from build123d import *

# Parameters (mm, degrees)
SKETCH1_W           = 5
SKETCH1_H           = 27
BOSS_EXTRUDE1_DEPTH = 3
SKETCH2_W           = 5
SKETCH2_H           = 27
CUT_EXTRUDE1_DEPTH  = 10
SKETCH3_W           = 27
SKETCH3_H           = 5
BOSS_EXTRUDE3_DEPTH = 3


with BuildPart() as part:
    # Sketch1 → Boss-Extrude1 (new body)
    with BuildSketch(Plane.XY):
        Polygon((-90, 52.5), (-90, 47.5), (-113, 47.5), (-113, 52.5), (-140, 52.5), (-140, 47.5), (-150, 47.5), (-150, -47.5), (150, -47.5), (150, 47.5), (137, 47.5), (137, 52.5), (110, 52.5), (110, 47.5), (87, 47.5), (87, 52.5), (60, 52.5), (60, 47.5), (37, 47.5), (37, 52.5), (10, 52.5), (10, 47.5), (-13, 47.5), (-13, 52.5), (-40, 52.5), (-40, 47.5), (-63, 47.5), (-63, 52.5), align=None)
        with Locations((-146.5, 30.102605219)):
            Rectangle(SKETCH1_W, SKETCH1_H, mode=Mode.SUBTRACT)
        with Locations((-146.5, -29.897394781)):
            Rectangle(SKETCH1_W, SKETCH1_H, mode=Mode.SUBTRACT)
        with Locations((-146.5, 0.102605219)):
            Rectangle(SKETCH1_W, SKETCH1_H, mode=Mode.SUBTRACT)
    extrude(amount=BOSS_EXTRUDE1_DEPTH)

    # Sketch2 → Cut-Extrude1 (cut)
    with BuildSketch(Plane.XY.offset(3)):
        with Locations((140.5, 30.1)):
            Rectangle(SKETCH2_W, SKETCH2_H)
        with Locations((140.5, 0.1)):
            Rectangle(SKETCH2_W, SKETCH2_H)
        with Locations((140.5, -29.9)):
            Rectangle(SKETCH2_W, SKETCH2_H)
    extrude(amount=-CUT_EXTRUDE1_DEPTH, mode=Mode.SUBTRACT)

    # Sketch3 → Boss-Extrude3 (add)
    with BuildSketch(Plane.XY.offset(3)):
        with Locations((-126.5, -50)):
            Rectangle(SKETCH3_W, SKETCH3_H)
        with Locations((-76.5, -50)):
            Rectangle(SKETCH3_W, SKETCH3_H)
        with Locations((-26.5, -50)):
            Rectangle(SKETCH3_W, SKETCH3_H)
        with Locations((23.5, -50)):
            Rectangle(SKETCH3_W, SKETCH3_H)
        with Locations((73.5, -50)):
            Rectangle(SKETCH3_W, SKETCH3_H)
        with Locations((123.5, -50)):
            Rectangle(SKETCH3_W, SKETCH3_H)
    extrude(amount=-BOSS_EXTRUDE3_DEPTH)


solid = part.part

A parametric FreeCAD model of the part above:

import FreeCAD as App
import Part
import Sketcher

V = App.Vector
Q = App.Units.Quantity

doc = App.newDocument("Part")
body = doc.addObject("PartDesign::Body", "Body")

# Sketch on XY plane
sketch1 = body.newObject("Sketcher::SketchObject", "Sketch")
sketch1.AttachmentSupport = (doc.getObject("XY_Plane"), [""])
sketch1.MapMode = "FlatFace"
sketch1.addGeometry(Part.LineSegment(V(-90, 52.5, 0), V(-90, 47.5, 0)), False)
sketch1.addGeometry(Part.LineSegment(V(-90, 47.5, 0), V(-113, 47.5, 0)), False)
sketch1.addGeometry(Part.LineSegment(V(-113, 47.5, 0), V(-113, 52.5, 0)), False)
sketch1.addGeometry(Part.LineSegment(V(-113, 52.5, 0), V(-140, 52.5, 0)), False)
sketch1.addGeometry(Part.LineSegment(V(-140, 52.5, 0), V(-140, 47.5, 0)), False)
sketch1.addGeometry(Part.LineSegment(V(-140, 47.5, 0), V(-150, 47.5, 0)), False)
sketch1.addGeometry(Part.LineSegment(V(-150, 47.5, 0), V(-150, -47.5, 0)), False)
sketch1.addGeometry(Part.LineSegment(V(-150, -47.5, 0), V(150, -47.5, 0)), False)
sketch1.addGeometry(Part.LineSegment(V(150, -47.5, 0), V(150, 47.5, 0)), False)
sketch1.addGeometry(Part.LineSegment(V(150, 47.5, 0), V(137, 47.5, 0)), False)
sketch1.addGeometry(Part.LineSegment(V(137, 47.5, 0), V(137, 52.5, 0)), False)
sketch1.addGeometry(Part.LineSegment(V(137, 52.5, 0), V(110, 52.5, 0)), False)
sketch1.addGeometry(Part.LineSegment(V(110, 52.5, 0), V(110, 47.5, 0)), False)
sketch1.addGeometry(Part.LineSegment(V(110, 47.5, 0), V(87, 47.5, 0)), False)
sketch1.addGeometry(Part.LineSegment(V(87, 47.5, 0), V(87, 52.5, 0)), False)
sketch1.addGeometry(Part.LineSegment(V(87, 52.5, 0), V(60, 52.5, 0)), False)
sketch1.addGeometry(Part.LineSegment(V(60, 52.5, 0), V(60, 47.5, 0)), False)
sketch1.addGeometry(Part.LineSegment(V(60, 47.5, 0), V(37, 47.5, 0)), False)
sketch1.addGeometry(Part.LineSegment(V(37, 47.5, 0), V(37, 52.5, 0)), False)
sketch1.addGeometry(Part.LineSegment(V(37, 52.5, 0), V(10, 52.5, 0)), False)
sketch1.addGeometry(Part.LineSegment(V(10, 52.5, 0), V(10, 47.5, 0)), False)
sketch1.addGeometry(Part.LineSegment(V(10, 47.5, 0), V(-13, 47.5, 0)), False)
sketch1.addGeometry(Part.LineSegment(V(-13, 47.5, 0), V(-13, 52.5, 0)), False)
sketch1.addGeometry(Part.LineSegment(V(-13, 52.5, 0), V(-40, 52.5, 0)), False)
sketch1.addGeometry(Part.LineSegment(V(-40, 52.5, 0), V(-40, 47.5, 0)), False)
sketch1.addGeometry(Part.LineSegment(V(-40, 47.5, 0), V(-63, 47.5, 0)), False)
sketch1.addGeometry(Part.LineSegment(V(-63, 47.5, 0), V(-63, 52.5, 0)), False)
sketch1.addGeometry(Part.LineSegment(V(-63, 52.5, 0), V(-90, 52.5, 0)), False)
sketch1.addGeometry(Part.LineSegment(V(-144, -43.397395, 0), V(-149, -43.397395, 0)), False)
sketch1.addGeometry(Part.LineSegment(V(-149, -43.397395, 0), V(-149, -16.397395, 0)), False)
sketch1.addGeometry(Part.LineSegment(V(-149, -16.397395, 0), V(-144, -16.397395, 0)), False)
sketch1.addGeometry(Part.LineSegment(V(-144, -16.397395, 0), V(-144, -43.397395, 0)), False)
sketch1.addGeometry(Part.LineSegment(V(-144, -13.397395, 0), V(-149, -13.397395, 0)), False)
sketch1.addGeometry(Part.LineSegment(V(-149, -13.397395, 0), V(-149, 13.602605, 0)), False)
sketch1.addGeometry(Part.LineSegment(V(-149, 13.602605, 0), V(-144, 13.602605, 0)), False)
sketch1.addGeometry(Part.LineSegment(V(-144, 13.602605, 0), V(-144, -13.397395, 0)), False)
sketch1.addGeometry(Part.LineSegment(V(-144, 16.602605, 0), V(-149, 16.602605, 0)), False)
sketch1.addGeometry(Part.LineSegment(V(-149, 16.602605, 0), V(-149, 43.602605, 0)), False)
sketch1.addGeometry(Part.LineSegment(V(-149, 43.602605, 0), V(-144, 43.602605, 0)), False)
sketch1.addGeometry(Part.LineSegment(V(-144, 43.602605, 0), V(-144, 16.602605, 0)), False)
sketch1.addConstraint(Sketcher.Constraint("Coincident", 0, 2, 1, 1))
sketch1.addConstraint(Sketcher.Constraint("Coincident", 1, 2, 2, 1))
sketch1.addConstraint(Sketcher.Constraint("Coincident", 2, 2, 3, 1))
sketch1.addConstraint(Sketcher.Constraint("Coincident", 3, 2, 4, 1))
sketch1.addConstraint(Sketcher.Constraint("Coincident", 4, 2, 5, 1))
sketch1.addConstraint(Sketcher.Constraint("Coincident", 5, 2, 6, 1))
sketch1.addConstraint(Sketcher.Constraint("Coincident", 6, 2, 7, 1))
sketch1.addConstraint(Sketcher.Constraint("Coincident", 7, 2, 8, 1))
sketch1.addConstraint(Sketcher.Constraint("Coincident", 8, 2, 9, 1))
sketch1.addConstraint(Sketcher.Constraint("Coincident", 9, 2, 10, 1))
sketch1.addConstraint(Sketcher.Constraint("Coincident", 10, 2, 11, 1))
sketch1.addConstraint(Sketcher.Constraint("Coincident", 11, 2, 12, 1))
sketch1.addConstraint(Sketcher.Constraint("Coincident", 12, 2, 13, 1))
sketch1.addConstraint(Sketcher.Constraint("Coincident", 13, 2, 14, 1))
sketch1.addConstraint(Sketcher.Constraint("Coincident", 14, 2, 15, 1))
sketch1.addConstraint(Sketcher.Constraint("Coincident", 15, 2, 16, 1))
sketch1.addConstraint(Sketcher.Constraint("Coincident", 16, 2, 17, 1))
sketch1.addConstraint(Sketcher.Constraint("Coincident", 17, 2, 18, 1))
sketch1.addConstraint(Sketcher.Constraint("Coincident", 18, 2, 19, 1))
sketch1.addConstraint(Sketcher.Constraint("Coincident", 19, 2, 20, 1))
sketch1.addConstraint(Sketcher.Constraint("Coincident", 20, 2, 21, 1))
sketch1.addConstraint(Sketcher.Constraint("Coincident", 21, 2, 22, 1))
sketch1.addConstraint(Sketcher.Constraint("Coincident", 22, 2, 23, 1))
sketch1.addConstraint(Sketcher.Constraint("Coincident", 23, 2, 24, 1))
sketch1.addConstraint(Sketcher.Constraint("Coincident", 24, 2, 25, 1))
sketch1.addConstraint(Sketcher.Constraint("Coincident", 25, 2, 26, 1))
sketch1.addConstraint(Sketcher.Constraint("Coincident", 26, 2, 27, 1))
sketch1.addConstraint(Sketcher.Constraint("Coincident", 27, 2, 0, 1))
sketch1.addConstraint(Sketcher.Constraint("Coincident", 28, 2, 29, 1))
sketch1.addConstraint(Sketcher.Constraint("Coincident", 29, 2, 30, 1))
sketch1.addConstraint(Sketcher.Constraint("Coincident", 30, 2, 31, 1))
sketch1.addConstraint(Sketcher.Constraint("Coincident", 31, 2, 28, 1))
sketch1.addConstraint(Sketcher.Constraint("Coincident", 32, 2, 33, 1))
sketch1.addConstraint(Sketcher.Constraint("Coincident", 33, 2, 34, 1))
sketch1.addConstraint(Sketcher.Constraint("Coincident", 34, 2, 35, 1))
sketch1.addConstraint(Sketcher.Constraint("Coincident", 35, 2, 32, 1))
sketch1.addConstraint(Sketcher.Constraint("Coincident", 36, 2, 37, 1))
sketch1.addConstraint(Sketcher.Constraint("Coincident", 37, 2, 38, 1))
sketch1.addConstraint(Sketcher.Constraint("Coincident", 38, 2, 39, 1))
sketch1.addConstraint(Sketcher.Constraint("Coincident", 39, 2, 36, 1))
sketch1.addConstraint(Sketcher.Constraint("Vertical", 0))
sketch1.addConstraint(Sketcher.Constraint("Horizontal", 1))
sketch1.addConstraint(Sketcher.Constraint("Vertical", 2))
sketch1.addConstraint(Sketcher.Constraint("Horizontal", 3))
sketch1.addConstraint(Sketcher.Constraint("Vertical", 4))
sketch1.addConstraint(Sketcher.Constraint("Horizontal", 5))
sketch1.addConstraint(Sketcher.Constraint("Vertical", 6))
sketch1.addConstraint(Sketcher.Constraint("Horizontal", 7))
sketch1.addConstraint(Sketcher.Constraint("Vertical", 8))
sketch1.addConstraint(Sketcher.Constraint("Horizontal", 9))
sketch1.addConstraint(Sketcher.Constraint("Vertical", 10))
sketch1.addConstraint(Sketcher.Constraint("Horizontal", 11))
sketch1.addConstraint(Sketcher.Constraint("Vertical", 12))
sketch1.addConstraint(Sketcher.Constraint("Horizontal", 13))
sketch1.addConstraint(Sketcher.Constraint("Vertical", 14))
sketch1.addConstraint(Sketcher.Constraint("Horizontal", 15))
sketch1.addConstraint(Sketcher.Constraint("Vertical", 16))
sketch1.addConstraint(Sketcher.Constraint("Horizontal", 17))
sketch1.addConstraint(Sketcher.Constraint("Vertical", 18))
sketch1.addConstraint(Sketcher.Constraint("Horizontal", 19))
sketch1.addConstraint(Sketcher.Constraint("Vertical", 20))
sketch1.addConstraint(Sketcher.Constraint("Horizontal", 21))
sketch1.addConstraint(Sketcher.Constraint("Vertical", 22))
sketch1.addConstraint(Sketcher.Constraint("Horizontal", 23))
sketch1.addConstraint(Sketcher.Constraint("Vertical", 24))
sketch1.addConstraint(Sketcher.Constraint("Horizontal", 25))
sketch1.addConstraint(Sketcher.Constraint("Vertical", 26))
sketch1.addConstraint(Sketcher.Constraint("Horizontal", 27))
sketch1.addConstraint(Sketcher.Constraint("Horizontal", 28))
sketch1.addConstraint(Sketcher.Constraint("Vertical", 29))
sketch1.addConstraint(Sketcher.Constraint("Horizontal", 30))
sketch1.addConstraint(Sketcher.Constraint("Vertical", 31))
sketch1.addConstraint(Sketcher.Constraint("Horizontal", 32))
sketch1.addConstraint(Sketcher.Constraint("Vertical", 33))
sketch1.addConstraint(Sketcher.Constraint("Horizontal", 34))
sketch1.addConstraint(Sketcher.Constraint("Vertical", 35))
sketch1.addConstraint(Sketcher.Constraint("Horizontal", 36))
sketch1.addConstraint(Sketcher.Constraint("Vertical", 37))
sketch1.addConstraint(Sketcher.Constraint("Horizontal", 38))
sketch1.addConstraint(Sketcher.Constraint("Vertical", 39))
sketch1.addConstraint(Sketcher.Constraint("Symmetric", 5, 2, 7, 2, -1, 1))
sketch1.addConstraint(Sketcher.Constraint("Horizontal", 1, 2, 4, 2))
sketch1.addConstraint(Sketcher.Constraint("Horizontal", 5, 2, 8, 2))
sketch1.addConstraint(Sketcher.Constraint("Horizontal", 3, 2, 10, 2))
sketch1.addConstraint(Sketcher.Constraint("Horizontal", 9, 2, 12, 2))
sketch1.addConstraint(Sketcher.Constraint("Horizontal", 11, 2, 14, 2))
sketch1.addConstraint(Sketcher.Constraint("Horizontal", 13, 2, 16, 2))
sketch1.addConstraint(Sketcher.Constraint("Horizontal", 15, 2, 18, 2))
sketch1.addConstraint(Sketcher.Constraint("Horizontal", 17, 2, 20, 2))
sketch1.addConstraint(Sketcher.Constraint("Horizontal", 19, 2, 22, 2))
sketch1.addConstraint(Sketcher.Constraint("Horizontal", 21, 2, 24, 2))
sketch1.addConstraint(Sketcher.Constraint("Horizontal", 23, 2, 26, 2))
sketch1.addConstraint(Sketcher.Constraint("Vertical", 29, 2, 32, 2))
sketch1.addConstraint(Sketcher.Constraint("Vertical", 31, 2, 34, 2))
sketch1.addConstraint(Sketcher.Constraint("Vertical", 33, 2, 36, 2))
sketch1.addConstraint(Sketcher.Constraint("Vertical", 35, 2, 38, 2))
sketch1.addConstraint(Sketcher.Constraint("Equal", 3, 11))
sketch1.addConstraint(Sketcher.Constraint("Equal", 1, 13))
sketch1.addConstraint(Sketcher.Constraint("Equal", 11, 15))
sketch1.addConstraint(Sketcher.Constraint("Equal", 13, 17))
sketch1.addConstraint(Sketcher.Constraint("Equal", 15, 19))
sketch1.addConstraint(Sketcher.Constraint("Equal", 17, 21))
sketch1.addConstraint(Sketcher.Constraint("Equal", 19, 23))
sketch1.addConstraint(Sketcher.Constraint("Equal", 21, 25))
sketch1.addConstraint(Sketcher.Constraint("Equal", 23, 27))
sketch1.addConstraint(Sketcher.Constraint("Equal", 38, 0))
sketch1.addConstraint(Sketcher.Constraint("Equal", 27, 29))
sketch1.addConstraint(Sketcher.Constraint("Equal", 31, 33))
sketch1.addConstraint(Sketcher.Constraint("Equal", 35, 37))
sketch1.addConstraint(Sketcher.Constraint("DistanceX", 1, 2, 1, 1, Q("23 mm")))
sketch1.addConstraint(Sketcher.Constraint("DistanceX", 3, 2, 3, 1, Q("27 mm")))
sketch1.addConstraint(Sketcher.Constraint("DistanceX", 5, 2, 5, 1, Q("10 mm")))
sketch1.addConstraint(Sketcher.Constraint("DistanceX", 7, 1, 7, 2, Q("300 mm")))
sketch1.addConstraint(Sketcher.Constraint("DistanceX", 28, 2, 28, 1, Q("5 mm")))
sketch1.addConstraint(Sketcher.Constraint("DistanceY", 6, 2, 6, 1, Q("95 mm")))
sketch1.addConstraint(Sketcher.Constraint("DistanceX", 28, 2, -1, 1, Q("149 mm")))
sketch1.addConstraint(Sketcher.Constraint("DistanceY", 29, 2, 32, 2, Q("3 mm")))
sketch1.addConstraint(Sketcher.Constraint("DistanceY", 33, 2, 36, 2, Q("3 mm")))
sketch1.addConstraint(Sketcher.Constraint("DistanceY", 28, 2, -1, 1, Q("43.397395 mm")))
pad1 = body.newObject("PartDesign::Pad", "Pad")
pad1.Profile = sketch1
pad1.Length = 3

# Sketch on XY plane
sketch2 = body.newObject("Sketcher::SketchObject", "Sketch001")
sketch2.AttachmentSupport = (doc.getObject("XY_Plane"), [""])
sketch2.MapMode = "FlatFace"
sketch2.AttachmentOffset = App.Placement(V(0, 0, 3), App.Rotation())
sketch2.addGeometry(Part.LineSegment(V(138, 43.6, 0), V(138, 16.6, 0)), False)
sketch2.addGeometry(Part.LineSegment(V(138, 16.6, 0), V(143, 16.6, 0)), False)
sketch2.addGeometry(Part.LineSegment(V(143, 16.6, 0), V(143, 43.6, 0)), False)
sketch2.addGeometry(Part.LineSegment(V(143, 43.6, 0), V(138, 43.6, 0)), False)
sketch2.addGeometry(Part.LineSegment(V(138, 13.6, 0), V(138, -13.4, 0)), False)
sketch2.addGeometry(Part.LineSegment(V(138, -13.4, 0), V(143, -13.4, 0)), False)
sketch2.addGeometry(Part.LineSegment(V(143, -13.4, 0), V(143, 13.6, 0)), False)
sketch2.addGeometry(Part.LineSegment(V(143, 13.6, 0), V(138, 13.6, 0)), False)
sketch2.addGeometry(Part.LineSegment(V(138, -16.4, 0), V(138, -43.4, 0)), False)
sketch2.addGeometry(Part.LineSegment(V(138, -43.4, 0), V(143, -43.4, 0)), False)
sketch2.addGeometry(Part.LineSegment(V(143, -43.4, 0), V(143, -16.4, 0)), False)
sketch2.addGeometry(Part.LineSegment(V(143, -16.4, 0), V(138, -16.4, 0)), False)
sketch2.addConstraint(Sketcher.Constraint("Coincident", 0, 2, 1, 1))
sketch2.addConstraint(Sketcher.Constraint("Coincident", 1, 2, 2, 1))
sketch2.addConstraint(Sketcher.Constraint("Coincident", 2, 2, 3, 1))
sketch2.addConstraint(Sketcher.Constraint("Coincident", 3, 2, 0, 1))
sketch2.addConstraint(Sketcher.Constraint("Coincident", 4, 2, 5, 1))
sketch2.addConstraint(Sketcher.Constraint("Coincident", 5, 2, 6, 1))
sketch2.addConstraint(Sketcher.Constraint("Coincident", 6, 2, 7, 1))
sketch2.addConstraint(Sketcher.Constraint("Coincident", 7, 2, 4, 1))
sketch2.addConstraint(Sketcher.Constraint("Coincident", 8, 2, 9, 1))
sketch2.addConstraint(Sketcher.Constraint("Coincident", 9, 2, 10, 1))
sketch2.addConstraint(Sketcher.Constraint("Coincident", 10, 2, 11, 1))
sketch2.addConstraint(Sketcher.Constraint("Coincident", 11, 2, 8, 1))
sketch2.addConstraint(Sketcher.Constraint("Vertical", 0))
sketch2.addConstraint(Sketcher.Constraint("Horizontal", 1))
sketch2.addConstraint(Sketcher.Constraint("Vertical", 2))
sketch2.addConstraint(Sketcher.Constraint("Horizontal", 3))
sketch2.addConstraint(Sketcher.Constraint("Vertical", 4))
sketch2.addConstraint(Sketcher.Constraint("Horizontal", 5))
sketch2.addConstraint(Sketcher.Constraint("Vertical", 6))
sketch2.addConstraint(Sketcher.Constraint("Horizontal", 7))
sketch2.addConstraint(Sketcher.Constraint("Vertical", 8))
sketch2.addConstraint(Sketcher.Constraint("Horizontal", 9))
sketch2.addConstraint(Sketcher.Constraint("Vertical", 10))
sketch2.addConstraint(Sketcher.Constraint("Horizontal", 11))
sketch2.addConstraint(Sketcher.Constraint("Vertical", 3, 2, 4, 2))
sketch2.addConstraint(Sketcher.Constraint("Vertical", 2, 2, 5, 2))
sketch2.addConstraint(Sketcher.Constraint("Vertical", 7, 2, 8, 2))
sketch2.addConstraint(Sketcher.Constraint("Vertical", 6, 2, 9, 2))
sketch2.addConstraint(Sketcher.Constraint("Equal", 2, 4))
sketch2.addConstraint(Sketcher.Constraint("Equal", 6, 8))
sketch2.addConstraint(Sketcher.Constraint("DistanceX", 1, 1, 1, 2, Q("5 mm")))
sketch2.addConstraint(Sketcher.Constraint("DistanceY", 0, 2, 0, 1, Q("27 mm")))
sketch2.addConstraint(Sketcher.Constraint("DistanceX", -1, 1, 0, 2, Q("138 mm")))
sketch2.addConstraint(Sketcher.Constraint("DistanceY", 4, 2, 0, 2, Q("30 mm")))
sketch2.addConstraint(Sketcher.Constraint("DistanceY", 8, 2, 4, 2, Q("30 mm")))
sketch2.addConstraint(Sketcher.Constraint("DistanceY", -1, 1, 0, 2, Q("16.6 mm")))
pocket1 = body.newObject("PartDesign::Pocket", "Pocket")
pocket1.Profile = sketch2
pocket1.Length = 10

# Sketch on XY plane
sketch3 = body.newObject("Sketcher::SketchObject", "Sketch002")
sketch3.AttachmentSupport = (doc.getObject("XY_Plane"), [""])
sketch3.MapMode = "FlatFace"
sketch3.AttachmentOffset = App.Placement(V(0, 0, 3), App.Rotation())
sketch3.addGeometry(Part.LineSegment(V(-140, -47.5, 0), V(-140, -52.5, 0)), False)
sketch3.addGeometry(Part.LineSegment(V(-140, -52.5, 0), V(-113, -52.5, 0)), False)
sketch3.addGeometry(Part.LineSegment(V(-113, -52.5, 0), V(-113, -47.5, 0)), False)
sketch3.addGeometry(Part.LineSegment(V(-113, -47.5, 0), V(-140, -47.5, 0)), False)
sketch3.addGeometry(Part.LineSegment(V(-90, -47.5, 0), V(-90, -52.5, 0)), False)
sketch3.addGeometry(Part.LineSegment(V(-90, -52.5, 0), V(-63, -52.5, 0)), False)
sketch3.addGeometry(Part.LineSegment(V(-63, -52.5, 0), V(-63, -47.5, 0)), False)
sketch3.addGeometry(Part.LineSegment(V(-63, -47.5, 0), V(-90, -47.5, 0)), False)
sketch3.addGeometry(Part.LineSegment(V(-40, -47.5, 0), V(-40, -52.5, 0)), False)
sketch3.addGeometry(Part.LineSegment(V(-40, -52.5, 0), V(-13, -52.5, 0)), False)
sketch3.addGeometry(Part.LineSegment(V(-13, -52.5, 0), V(-13, -47.5, 0)), False)
sketch3.addGeometry(Part.LineSegment(V(-13, -47.5, 0), V(-40, -47.5, 0)), False)
sketch3.addGeometry(Part.LineSegment(V(10, -47.5, 0), V(10, -52.5, 0)), False)
sketch3.addGeometry(Part.LineSegment(V(10, -52.5, 0), V(37, -52.5, 0)), False)
sketch3.addGeometry(Part.LineSegment(V(37, -52.5, 0), V(37, -47.5, 0)), False)
sketch3.addGeometry(Part.LineSegment(V(37, -47.5, 0), V(10, -47.5, 0)), False)
sketch3.addGeometry(Part.LineSegment(V(60, -47.5, 0), V(60, -52.5, 0)), False)
sketch3.addGeometry(Part.LineSegment(V(60, -52.5, 0), V(87, -52.5, 0)), False)
sketch3.addGeometry(Part.LineSegment(V(87, -52.5, 0), V(87, -47.5, 0)), False)
sketch3.addGeometry(Part.LineSegment(V(87, -47.5, 0), V(60, -47.5, 0)), False)
sketch3.addGeometry(Part.LineSegment(V(110, -47.5, 0), V(110, -52.5, 0)), False)
sketch3.addGeometry(Part.LineSegment(V(110, -52.5, 0), V(137, -52.5, 0)), False)
sketch3.addGeometry(Part.LineSegment(V(137, -52.5, 0), V(137, -47.5, 0)), False)
sketch3.addGeometry(Part.LineSegment(V(137, -47.5, 0), V(110, -47.5, 0)), False)
sketch3.addConstraint(Sketcher.Constraint("Coincident", 0, 2, 1, 1))
sketch3.addConstraint(Sketcher.Constraint("Coincident", 1, 2, 2, 1))
sketch3.addConstraint(Sketcher.Constraint("Coincident", 2, 2, 3, 1))
sketch3.addConstraint(Sketcher.Constraint("Coincident", 3, 2, 0, 1))
sketch3.addConstraint(Sketcher.Constraint("Coincident", 4, 2, 5, 1))
sketch3.addConstraint(Sketcher.Constraint("Coincident", 5, 2, 6, 1))
sketch3.addConstraint(Sketcher.Constraint("Coincident", 6, 2, 7, 1))
sketch3.addConstraint(Sketcher.Constraint("Coincident", 7, 2, 4, 1))
sketch3.addConstraint(Sketcher.Constraint("Coincident", 8, 2, 9, 1))
sketch3.addConstraint(Sketcher.Constraint("Coincident", 9, 2, 10, 1))
sketch3.addConstraint(Sketcher.Constraint("Coincident", 10, 2, 11, 1))
sketch3.addConstraint(Sketcher.Constraint("Coincident", 11, 2, 8, 1))
sketch3.addConstraint(Sketcher.Constraint("Coincident", 12, 2, 13, 1))
sketch3.addConstraint(Sketcher.Constraint("Coincident", 13, 2, 14, 1))
sketch3.addConstraint(Sketcher.Constraint("Coincident", 14, 2, 15, 1))
sketch3.addConstraint(Sketcher.Constraint("Coincident", 15, 2, 12, 1))
sketch3.addConstraint(Sketcher.Constraint("Coincident", 16, 2, 17, 1))
sketch3.addConstraint(Sketcher.Constraint("Coincident", 17, 2, 18, 1))
sketch3.addConstraint(Sketcher.Constraint("Coincident", 18, 2, 19, 1))
sketch3.addConstraint(Sketcher.Constraint("Coincident", 19, 2, 16, 1))
sketch3.addConstraint(Sketcher.Constraint("Coincident", 20, 2, 21, 1))
sketch3.addConstraint(Sketcher.Constraint("Coincident", 21, 2, 22, 1))
sketch3.addConstraint(Sketcher.Constraint("Coincident", 22, 2, 23, 1))
sketch3.addConstraint(Sketcher.Constraint("Coincident", 23, 2, 20, 1))
sketch3.addConstraint(Sketcher.Constraint("Vertical", 0))
sketch3.addConstraint(Sketcher.Constraint("Horizontal", 1))
sketch3.addConstraint(Sketcher.Constraint("Vertical", 2))
sketch3.addConstraint(Sketcher.Constraint("Horizontal", 3))
sketch3.addConstraint(Sketcher.Constraint("Vertical", 4))
sketch3.addConstraint(Sketcher.Constraint("Horizontal", 5))
sketch3.addConstraint(Sketcher.Constraint("Vertical", 6))
sketch3.addConstraint(Sketcher.Constraint("Horizontal", 7))
sketch3.addConstraint(Sketcher.Constraint("Vertical", 8))
sketch3.addConstraint(Sketcher.Constraint("Horizontal", 9))
sketch3.addConstraint(Sketcher.Constraint("Vertical", 10))
sketch3.addConstraint(Sketcher.Constraint("Horizontal", 11))
sketch3.addConstraint(Sketcher.Constraint("Vertical", 12))
sketch3.addConstraint(Sketcher.Constraint("Horizontal", 13))
sketch3.addConstraint(Sketcher.Constraint("Vertical", 14))
sketch3.addConstraint(Sketcher.Constraint("Horizontal", 15))
sketch3.addConstraint(Sketcher.Constraint("Vertical", 16))
sketch3.addConstraint(Sketcher.Constraint("Horizontal", 17))
sketch3.addConstraint(Sketcher.Constraint("Vertical", 18))
sketch3.addConstraint(Sketcher.Constraint("Horizontal", 19))
sketch3.addConstraint(Sketcher.Constraint("Vertical", 20))
sketch3.addConstraint(Sketcher.Constraint("Horizontal", 21))
sketch3.addConstraint(Sketcher.Constraint("Vertical", 22))
sketch3.addConstraint(Sketcher.Constraint("Horizontal", 23))
sketch3.addConstraint(Sketcher.Constraint("Horizontal", 1, 2, 4, 2))
sketch3.addConstraint(Sketcher.Constraint("Horizontal", 3, 2, 6, 2))
sketch3.addConstraint(Sketcher.Constraint("Horizontal", 5, 2, 8, 2))
sketch3.addConstraint(Sketcher.Constraint("Horizontal", 7, 2, 10, 2))
sketch3.addConstraint(Sketcher.Constraint("Horizontal", 9, 2, 12, 2))
sketch3.addConstraint(Sketcher.Constraint("Horizontal", 11, 2, 14, 2))
sketch3.addConstraint(Sketcher.Constraint("Horizontal", 13, 2, 16, 2))
sketch3.addConstraint(Sketcher.Constraint("Horizontal", 15, 2, 18, 2))
sketch3.addConstraint(Sketcher.Constraint("Horizontal", 17, 2, 20, 2))
sketch3.addConstraint(Sketcher.Constraint("Horizontal", 19, 2, 22, 2))
sketch3.addConstraint(Sketcher.Constraint("Equal", 3, 5))
sketch3.addConstraint(Sketcher.Constraint("Equal", 7, 9))
sketch3.addConstraint(Sketcher.Constraint("Equal", 11, 13))
sketch3.addConstraint(Sketcher.Constraint("Equal", 15, 17))
sketch3.addConstraint(Sketcher.Constraint("Equal", 19, 21))
sketch3.addConstraint(Sketcher.Constraint("DistanceX", 1, 1, 1, 2, Q("27 mm")))
sketch3.addConstraint(Sketcher.Constraint("DistanceY", 0, 2, 0, 1, Q("5 mm")))
sketch3.addConstraint(Sketcher.Constraint("DistanceX", 0, 2, -1, 1, Q("140 mm")))
sketch3.addConstraint(Sketcher.Constraint("DistanceX", 4, 2, -1, 1, Q("90 mm")))
sketch3.addConstraint(Sketcher.Constraint("DistanceX", 8, 2, -1, 1, Q("40 mm")))
sketch3.addConstraint(Sketcher.Constraint("DistanceX", -1, 1, 12, 2, Q("10 mm")))
sketch3.addConstraint(Sketcher.Constraint("DistanceX", -1, 1, 16, 2, Q("60 mm")))
sketch3.addConstraint(Sketcher.Constraint("DistanceX", -1, 1, 20, 2, Q("110 mm")))
sketch3.addConstraint(Sketcher.Constraint("DistanceY", 0, 2, -1, 1, Q("52.5 mm")))
pad2 = body.newObject("PartDesign::Pad", "Pad001")
pad2.Profile = sketch3
pad2.Length = 3
pad2.Reversed = True

doc.recompute()
